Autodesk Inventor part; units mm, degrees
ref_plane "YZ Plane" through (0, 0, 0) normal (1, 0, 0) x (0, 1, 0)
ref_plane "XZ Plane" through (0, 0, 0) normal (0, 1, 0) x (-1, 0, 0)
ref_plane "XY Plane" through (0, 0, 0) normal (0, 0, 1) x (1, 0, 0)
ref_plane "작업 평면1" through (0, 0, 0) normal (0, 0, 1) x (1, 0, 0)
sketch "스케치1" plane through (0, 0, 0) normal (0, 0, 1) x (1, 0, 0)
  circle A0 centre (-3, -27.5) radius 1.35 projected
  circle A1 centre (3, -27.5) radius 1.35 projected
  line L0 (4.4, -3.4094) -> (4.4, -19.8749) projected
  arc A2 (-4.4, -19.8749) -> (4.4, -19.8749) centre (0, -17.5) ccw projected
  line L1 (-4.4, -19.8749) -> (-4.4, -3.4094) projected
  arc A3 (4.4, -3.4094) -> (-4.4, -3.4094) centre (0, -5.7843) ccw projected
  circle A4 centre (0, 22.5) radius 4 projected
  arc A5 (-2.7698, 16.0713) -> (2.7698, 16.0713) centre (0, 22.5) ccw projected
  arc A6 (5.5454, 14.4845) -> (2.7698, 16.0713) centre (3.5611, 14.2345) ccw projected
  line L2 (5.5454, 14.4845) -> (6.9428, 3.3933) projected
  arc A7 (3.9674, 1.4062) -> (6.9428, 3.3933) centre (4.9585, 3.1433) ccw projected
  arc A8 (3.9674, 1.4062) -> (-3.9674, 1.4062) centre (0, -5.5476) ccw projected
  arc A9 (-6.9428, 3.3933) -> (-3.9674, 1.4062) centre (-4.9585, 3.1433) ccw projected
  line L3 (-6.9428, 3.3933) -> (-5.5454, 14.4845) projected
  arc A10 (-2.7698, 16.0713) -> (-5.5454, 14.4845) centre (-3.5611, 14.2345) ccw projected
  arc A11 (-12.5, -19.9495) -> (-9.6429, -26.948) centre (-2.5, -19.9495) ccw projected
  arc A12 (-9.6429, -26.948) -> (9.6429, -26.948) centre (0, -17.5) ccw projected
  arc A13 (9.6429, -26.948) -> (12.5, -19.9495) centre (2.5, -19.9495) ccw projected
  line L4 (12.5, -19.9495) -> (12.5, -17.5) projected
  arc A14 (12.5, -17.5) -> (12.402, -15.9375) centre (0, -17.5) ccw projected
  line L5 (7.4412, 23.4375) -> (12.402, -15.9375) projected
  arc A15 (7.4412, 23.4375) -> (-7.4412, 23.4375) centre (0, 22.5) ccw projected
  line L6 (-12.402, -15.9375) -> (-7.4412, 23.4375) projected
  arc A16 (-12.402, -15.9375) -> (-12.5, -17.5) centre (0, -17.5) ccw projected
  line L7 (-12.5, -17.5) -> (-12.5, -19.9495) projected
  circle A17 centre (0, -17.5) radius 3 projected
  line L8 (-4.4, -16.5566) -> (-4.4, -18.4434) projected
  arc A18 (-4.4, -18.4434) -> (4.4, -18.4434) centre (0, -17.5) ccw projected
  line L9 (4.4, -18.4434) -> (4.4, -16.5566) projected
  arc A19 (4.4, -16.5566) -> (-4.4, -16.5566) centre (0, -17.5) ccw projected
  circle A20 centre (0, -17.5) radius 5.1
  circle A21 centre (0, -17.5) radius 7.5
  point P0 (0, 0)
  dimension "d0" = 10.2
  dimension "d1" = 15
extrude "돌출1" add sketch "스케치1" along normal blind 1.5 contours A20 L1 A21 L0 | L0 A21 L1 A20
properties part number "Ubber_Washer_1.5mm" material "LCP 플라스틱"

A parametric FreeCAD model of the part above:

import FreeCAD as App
import Part
import Sketcher

V = App.Vector
Q = App.Units.Quantity

doc = App.newDocument("Part")
body = doc.addObject("PartDesign::Body", "Body")

# Sketch on XY plane
sketch1 = body.newObject("Sketcher::SketchObject", "Sketch")
sketch1.AttachmentSupport = (doc.getObject("XY_Plane"), [""])
sketch1.MapMode = "FlatFace"
sketch1.addGeometry([
    Part.Circle(V(0, -18, 0), V(0, 0, 1), 8),
    Part.Circle(V(0, -18, 0), V(0, 0, 1), 5),
], False)
sketch1.addConstraint([
    Sketcher.Constraint("Coincident", 1, 3, 0, 3),
    Sketcher.Constraint("PointOnObject", 0, 3, -2),
    Sketcher.Constraint("Diameter", 0, Q("15 mm")),
    Sketcher.Constraint("Diameter", 1, Q("10.2 mm")),
    Sketcher.Constraint("DistanceY", 0, 3, -1, 1, Q("17.5 mm")),
])
pad1 = body.newObject("PartDesign::Pad", "Pad")
pad1.Profile = sketch1
pad1.Length = 1.5

doc.recompute()
